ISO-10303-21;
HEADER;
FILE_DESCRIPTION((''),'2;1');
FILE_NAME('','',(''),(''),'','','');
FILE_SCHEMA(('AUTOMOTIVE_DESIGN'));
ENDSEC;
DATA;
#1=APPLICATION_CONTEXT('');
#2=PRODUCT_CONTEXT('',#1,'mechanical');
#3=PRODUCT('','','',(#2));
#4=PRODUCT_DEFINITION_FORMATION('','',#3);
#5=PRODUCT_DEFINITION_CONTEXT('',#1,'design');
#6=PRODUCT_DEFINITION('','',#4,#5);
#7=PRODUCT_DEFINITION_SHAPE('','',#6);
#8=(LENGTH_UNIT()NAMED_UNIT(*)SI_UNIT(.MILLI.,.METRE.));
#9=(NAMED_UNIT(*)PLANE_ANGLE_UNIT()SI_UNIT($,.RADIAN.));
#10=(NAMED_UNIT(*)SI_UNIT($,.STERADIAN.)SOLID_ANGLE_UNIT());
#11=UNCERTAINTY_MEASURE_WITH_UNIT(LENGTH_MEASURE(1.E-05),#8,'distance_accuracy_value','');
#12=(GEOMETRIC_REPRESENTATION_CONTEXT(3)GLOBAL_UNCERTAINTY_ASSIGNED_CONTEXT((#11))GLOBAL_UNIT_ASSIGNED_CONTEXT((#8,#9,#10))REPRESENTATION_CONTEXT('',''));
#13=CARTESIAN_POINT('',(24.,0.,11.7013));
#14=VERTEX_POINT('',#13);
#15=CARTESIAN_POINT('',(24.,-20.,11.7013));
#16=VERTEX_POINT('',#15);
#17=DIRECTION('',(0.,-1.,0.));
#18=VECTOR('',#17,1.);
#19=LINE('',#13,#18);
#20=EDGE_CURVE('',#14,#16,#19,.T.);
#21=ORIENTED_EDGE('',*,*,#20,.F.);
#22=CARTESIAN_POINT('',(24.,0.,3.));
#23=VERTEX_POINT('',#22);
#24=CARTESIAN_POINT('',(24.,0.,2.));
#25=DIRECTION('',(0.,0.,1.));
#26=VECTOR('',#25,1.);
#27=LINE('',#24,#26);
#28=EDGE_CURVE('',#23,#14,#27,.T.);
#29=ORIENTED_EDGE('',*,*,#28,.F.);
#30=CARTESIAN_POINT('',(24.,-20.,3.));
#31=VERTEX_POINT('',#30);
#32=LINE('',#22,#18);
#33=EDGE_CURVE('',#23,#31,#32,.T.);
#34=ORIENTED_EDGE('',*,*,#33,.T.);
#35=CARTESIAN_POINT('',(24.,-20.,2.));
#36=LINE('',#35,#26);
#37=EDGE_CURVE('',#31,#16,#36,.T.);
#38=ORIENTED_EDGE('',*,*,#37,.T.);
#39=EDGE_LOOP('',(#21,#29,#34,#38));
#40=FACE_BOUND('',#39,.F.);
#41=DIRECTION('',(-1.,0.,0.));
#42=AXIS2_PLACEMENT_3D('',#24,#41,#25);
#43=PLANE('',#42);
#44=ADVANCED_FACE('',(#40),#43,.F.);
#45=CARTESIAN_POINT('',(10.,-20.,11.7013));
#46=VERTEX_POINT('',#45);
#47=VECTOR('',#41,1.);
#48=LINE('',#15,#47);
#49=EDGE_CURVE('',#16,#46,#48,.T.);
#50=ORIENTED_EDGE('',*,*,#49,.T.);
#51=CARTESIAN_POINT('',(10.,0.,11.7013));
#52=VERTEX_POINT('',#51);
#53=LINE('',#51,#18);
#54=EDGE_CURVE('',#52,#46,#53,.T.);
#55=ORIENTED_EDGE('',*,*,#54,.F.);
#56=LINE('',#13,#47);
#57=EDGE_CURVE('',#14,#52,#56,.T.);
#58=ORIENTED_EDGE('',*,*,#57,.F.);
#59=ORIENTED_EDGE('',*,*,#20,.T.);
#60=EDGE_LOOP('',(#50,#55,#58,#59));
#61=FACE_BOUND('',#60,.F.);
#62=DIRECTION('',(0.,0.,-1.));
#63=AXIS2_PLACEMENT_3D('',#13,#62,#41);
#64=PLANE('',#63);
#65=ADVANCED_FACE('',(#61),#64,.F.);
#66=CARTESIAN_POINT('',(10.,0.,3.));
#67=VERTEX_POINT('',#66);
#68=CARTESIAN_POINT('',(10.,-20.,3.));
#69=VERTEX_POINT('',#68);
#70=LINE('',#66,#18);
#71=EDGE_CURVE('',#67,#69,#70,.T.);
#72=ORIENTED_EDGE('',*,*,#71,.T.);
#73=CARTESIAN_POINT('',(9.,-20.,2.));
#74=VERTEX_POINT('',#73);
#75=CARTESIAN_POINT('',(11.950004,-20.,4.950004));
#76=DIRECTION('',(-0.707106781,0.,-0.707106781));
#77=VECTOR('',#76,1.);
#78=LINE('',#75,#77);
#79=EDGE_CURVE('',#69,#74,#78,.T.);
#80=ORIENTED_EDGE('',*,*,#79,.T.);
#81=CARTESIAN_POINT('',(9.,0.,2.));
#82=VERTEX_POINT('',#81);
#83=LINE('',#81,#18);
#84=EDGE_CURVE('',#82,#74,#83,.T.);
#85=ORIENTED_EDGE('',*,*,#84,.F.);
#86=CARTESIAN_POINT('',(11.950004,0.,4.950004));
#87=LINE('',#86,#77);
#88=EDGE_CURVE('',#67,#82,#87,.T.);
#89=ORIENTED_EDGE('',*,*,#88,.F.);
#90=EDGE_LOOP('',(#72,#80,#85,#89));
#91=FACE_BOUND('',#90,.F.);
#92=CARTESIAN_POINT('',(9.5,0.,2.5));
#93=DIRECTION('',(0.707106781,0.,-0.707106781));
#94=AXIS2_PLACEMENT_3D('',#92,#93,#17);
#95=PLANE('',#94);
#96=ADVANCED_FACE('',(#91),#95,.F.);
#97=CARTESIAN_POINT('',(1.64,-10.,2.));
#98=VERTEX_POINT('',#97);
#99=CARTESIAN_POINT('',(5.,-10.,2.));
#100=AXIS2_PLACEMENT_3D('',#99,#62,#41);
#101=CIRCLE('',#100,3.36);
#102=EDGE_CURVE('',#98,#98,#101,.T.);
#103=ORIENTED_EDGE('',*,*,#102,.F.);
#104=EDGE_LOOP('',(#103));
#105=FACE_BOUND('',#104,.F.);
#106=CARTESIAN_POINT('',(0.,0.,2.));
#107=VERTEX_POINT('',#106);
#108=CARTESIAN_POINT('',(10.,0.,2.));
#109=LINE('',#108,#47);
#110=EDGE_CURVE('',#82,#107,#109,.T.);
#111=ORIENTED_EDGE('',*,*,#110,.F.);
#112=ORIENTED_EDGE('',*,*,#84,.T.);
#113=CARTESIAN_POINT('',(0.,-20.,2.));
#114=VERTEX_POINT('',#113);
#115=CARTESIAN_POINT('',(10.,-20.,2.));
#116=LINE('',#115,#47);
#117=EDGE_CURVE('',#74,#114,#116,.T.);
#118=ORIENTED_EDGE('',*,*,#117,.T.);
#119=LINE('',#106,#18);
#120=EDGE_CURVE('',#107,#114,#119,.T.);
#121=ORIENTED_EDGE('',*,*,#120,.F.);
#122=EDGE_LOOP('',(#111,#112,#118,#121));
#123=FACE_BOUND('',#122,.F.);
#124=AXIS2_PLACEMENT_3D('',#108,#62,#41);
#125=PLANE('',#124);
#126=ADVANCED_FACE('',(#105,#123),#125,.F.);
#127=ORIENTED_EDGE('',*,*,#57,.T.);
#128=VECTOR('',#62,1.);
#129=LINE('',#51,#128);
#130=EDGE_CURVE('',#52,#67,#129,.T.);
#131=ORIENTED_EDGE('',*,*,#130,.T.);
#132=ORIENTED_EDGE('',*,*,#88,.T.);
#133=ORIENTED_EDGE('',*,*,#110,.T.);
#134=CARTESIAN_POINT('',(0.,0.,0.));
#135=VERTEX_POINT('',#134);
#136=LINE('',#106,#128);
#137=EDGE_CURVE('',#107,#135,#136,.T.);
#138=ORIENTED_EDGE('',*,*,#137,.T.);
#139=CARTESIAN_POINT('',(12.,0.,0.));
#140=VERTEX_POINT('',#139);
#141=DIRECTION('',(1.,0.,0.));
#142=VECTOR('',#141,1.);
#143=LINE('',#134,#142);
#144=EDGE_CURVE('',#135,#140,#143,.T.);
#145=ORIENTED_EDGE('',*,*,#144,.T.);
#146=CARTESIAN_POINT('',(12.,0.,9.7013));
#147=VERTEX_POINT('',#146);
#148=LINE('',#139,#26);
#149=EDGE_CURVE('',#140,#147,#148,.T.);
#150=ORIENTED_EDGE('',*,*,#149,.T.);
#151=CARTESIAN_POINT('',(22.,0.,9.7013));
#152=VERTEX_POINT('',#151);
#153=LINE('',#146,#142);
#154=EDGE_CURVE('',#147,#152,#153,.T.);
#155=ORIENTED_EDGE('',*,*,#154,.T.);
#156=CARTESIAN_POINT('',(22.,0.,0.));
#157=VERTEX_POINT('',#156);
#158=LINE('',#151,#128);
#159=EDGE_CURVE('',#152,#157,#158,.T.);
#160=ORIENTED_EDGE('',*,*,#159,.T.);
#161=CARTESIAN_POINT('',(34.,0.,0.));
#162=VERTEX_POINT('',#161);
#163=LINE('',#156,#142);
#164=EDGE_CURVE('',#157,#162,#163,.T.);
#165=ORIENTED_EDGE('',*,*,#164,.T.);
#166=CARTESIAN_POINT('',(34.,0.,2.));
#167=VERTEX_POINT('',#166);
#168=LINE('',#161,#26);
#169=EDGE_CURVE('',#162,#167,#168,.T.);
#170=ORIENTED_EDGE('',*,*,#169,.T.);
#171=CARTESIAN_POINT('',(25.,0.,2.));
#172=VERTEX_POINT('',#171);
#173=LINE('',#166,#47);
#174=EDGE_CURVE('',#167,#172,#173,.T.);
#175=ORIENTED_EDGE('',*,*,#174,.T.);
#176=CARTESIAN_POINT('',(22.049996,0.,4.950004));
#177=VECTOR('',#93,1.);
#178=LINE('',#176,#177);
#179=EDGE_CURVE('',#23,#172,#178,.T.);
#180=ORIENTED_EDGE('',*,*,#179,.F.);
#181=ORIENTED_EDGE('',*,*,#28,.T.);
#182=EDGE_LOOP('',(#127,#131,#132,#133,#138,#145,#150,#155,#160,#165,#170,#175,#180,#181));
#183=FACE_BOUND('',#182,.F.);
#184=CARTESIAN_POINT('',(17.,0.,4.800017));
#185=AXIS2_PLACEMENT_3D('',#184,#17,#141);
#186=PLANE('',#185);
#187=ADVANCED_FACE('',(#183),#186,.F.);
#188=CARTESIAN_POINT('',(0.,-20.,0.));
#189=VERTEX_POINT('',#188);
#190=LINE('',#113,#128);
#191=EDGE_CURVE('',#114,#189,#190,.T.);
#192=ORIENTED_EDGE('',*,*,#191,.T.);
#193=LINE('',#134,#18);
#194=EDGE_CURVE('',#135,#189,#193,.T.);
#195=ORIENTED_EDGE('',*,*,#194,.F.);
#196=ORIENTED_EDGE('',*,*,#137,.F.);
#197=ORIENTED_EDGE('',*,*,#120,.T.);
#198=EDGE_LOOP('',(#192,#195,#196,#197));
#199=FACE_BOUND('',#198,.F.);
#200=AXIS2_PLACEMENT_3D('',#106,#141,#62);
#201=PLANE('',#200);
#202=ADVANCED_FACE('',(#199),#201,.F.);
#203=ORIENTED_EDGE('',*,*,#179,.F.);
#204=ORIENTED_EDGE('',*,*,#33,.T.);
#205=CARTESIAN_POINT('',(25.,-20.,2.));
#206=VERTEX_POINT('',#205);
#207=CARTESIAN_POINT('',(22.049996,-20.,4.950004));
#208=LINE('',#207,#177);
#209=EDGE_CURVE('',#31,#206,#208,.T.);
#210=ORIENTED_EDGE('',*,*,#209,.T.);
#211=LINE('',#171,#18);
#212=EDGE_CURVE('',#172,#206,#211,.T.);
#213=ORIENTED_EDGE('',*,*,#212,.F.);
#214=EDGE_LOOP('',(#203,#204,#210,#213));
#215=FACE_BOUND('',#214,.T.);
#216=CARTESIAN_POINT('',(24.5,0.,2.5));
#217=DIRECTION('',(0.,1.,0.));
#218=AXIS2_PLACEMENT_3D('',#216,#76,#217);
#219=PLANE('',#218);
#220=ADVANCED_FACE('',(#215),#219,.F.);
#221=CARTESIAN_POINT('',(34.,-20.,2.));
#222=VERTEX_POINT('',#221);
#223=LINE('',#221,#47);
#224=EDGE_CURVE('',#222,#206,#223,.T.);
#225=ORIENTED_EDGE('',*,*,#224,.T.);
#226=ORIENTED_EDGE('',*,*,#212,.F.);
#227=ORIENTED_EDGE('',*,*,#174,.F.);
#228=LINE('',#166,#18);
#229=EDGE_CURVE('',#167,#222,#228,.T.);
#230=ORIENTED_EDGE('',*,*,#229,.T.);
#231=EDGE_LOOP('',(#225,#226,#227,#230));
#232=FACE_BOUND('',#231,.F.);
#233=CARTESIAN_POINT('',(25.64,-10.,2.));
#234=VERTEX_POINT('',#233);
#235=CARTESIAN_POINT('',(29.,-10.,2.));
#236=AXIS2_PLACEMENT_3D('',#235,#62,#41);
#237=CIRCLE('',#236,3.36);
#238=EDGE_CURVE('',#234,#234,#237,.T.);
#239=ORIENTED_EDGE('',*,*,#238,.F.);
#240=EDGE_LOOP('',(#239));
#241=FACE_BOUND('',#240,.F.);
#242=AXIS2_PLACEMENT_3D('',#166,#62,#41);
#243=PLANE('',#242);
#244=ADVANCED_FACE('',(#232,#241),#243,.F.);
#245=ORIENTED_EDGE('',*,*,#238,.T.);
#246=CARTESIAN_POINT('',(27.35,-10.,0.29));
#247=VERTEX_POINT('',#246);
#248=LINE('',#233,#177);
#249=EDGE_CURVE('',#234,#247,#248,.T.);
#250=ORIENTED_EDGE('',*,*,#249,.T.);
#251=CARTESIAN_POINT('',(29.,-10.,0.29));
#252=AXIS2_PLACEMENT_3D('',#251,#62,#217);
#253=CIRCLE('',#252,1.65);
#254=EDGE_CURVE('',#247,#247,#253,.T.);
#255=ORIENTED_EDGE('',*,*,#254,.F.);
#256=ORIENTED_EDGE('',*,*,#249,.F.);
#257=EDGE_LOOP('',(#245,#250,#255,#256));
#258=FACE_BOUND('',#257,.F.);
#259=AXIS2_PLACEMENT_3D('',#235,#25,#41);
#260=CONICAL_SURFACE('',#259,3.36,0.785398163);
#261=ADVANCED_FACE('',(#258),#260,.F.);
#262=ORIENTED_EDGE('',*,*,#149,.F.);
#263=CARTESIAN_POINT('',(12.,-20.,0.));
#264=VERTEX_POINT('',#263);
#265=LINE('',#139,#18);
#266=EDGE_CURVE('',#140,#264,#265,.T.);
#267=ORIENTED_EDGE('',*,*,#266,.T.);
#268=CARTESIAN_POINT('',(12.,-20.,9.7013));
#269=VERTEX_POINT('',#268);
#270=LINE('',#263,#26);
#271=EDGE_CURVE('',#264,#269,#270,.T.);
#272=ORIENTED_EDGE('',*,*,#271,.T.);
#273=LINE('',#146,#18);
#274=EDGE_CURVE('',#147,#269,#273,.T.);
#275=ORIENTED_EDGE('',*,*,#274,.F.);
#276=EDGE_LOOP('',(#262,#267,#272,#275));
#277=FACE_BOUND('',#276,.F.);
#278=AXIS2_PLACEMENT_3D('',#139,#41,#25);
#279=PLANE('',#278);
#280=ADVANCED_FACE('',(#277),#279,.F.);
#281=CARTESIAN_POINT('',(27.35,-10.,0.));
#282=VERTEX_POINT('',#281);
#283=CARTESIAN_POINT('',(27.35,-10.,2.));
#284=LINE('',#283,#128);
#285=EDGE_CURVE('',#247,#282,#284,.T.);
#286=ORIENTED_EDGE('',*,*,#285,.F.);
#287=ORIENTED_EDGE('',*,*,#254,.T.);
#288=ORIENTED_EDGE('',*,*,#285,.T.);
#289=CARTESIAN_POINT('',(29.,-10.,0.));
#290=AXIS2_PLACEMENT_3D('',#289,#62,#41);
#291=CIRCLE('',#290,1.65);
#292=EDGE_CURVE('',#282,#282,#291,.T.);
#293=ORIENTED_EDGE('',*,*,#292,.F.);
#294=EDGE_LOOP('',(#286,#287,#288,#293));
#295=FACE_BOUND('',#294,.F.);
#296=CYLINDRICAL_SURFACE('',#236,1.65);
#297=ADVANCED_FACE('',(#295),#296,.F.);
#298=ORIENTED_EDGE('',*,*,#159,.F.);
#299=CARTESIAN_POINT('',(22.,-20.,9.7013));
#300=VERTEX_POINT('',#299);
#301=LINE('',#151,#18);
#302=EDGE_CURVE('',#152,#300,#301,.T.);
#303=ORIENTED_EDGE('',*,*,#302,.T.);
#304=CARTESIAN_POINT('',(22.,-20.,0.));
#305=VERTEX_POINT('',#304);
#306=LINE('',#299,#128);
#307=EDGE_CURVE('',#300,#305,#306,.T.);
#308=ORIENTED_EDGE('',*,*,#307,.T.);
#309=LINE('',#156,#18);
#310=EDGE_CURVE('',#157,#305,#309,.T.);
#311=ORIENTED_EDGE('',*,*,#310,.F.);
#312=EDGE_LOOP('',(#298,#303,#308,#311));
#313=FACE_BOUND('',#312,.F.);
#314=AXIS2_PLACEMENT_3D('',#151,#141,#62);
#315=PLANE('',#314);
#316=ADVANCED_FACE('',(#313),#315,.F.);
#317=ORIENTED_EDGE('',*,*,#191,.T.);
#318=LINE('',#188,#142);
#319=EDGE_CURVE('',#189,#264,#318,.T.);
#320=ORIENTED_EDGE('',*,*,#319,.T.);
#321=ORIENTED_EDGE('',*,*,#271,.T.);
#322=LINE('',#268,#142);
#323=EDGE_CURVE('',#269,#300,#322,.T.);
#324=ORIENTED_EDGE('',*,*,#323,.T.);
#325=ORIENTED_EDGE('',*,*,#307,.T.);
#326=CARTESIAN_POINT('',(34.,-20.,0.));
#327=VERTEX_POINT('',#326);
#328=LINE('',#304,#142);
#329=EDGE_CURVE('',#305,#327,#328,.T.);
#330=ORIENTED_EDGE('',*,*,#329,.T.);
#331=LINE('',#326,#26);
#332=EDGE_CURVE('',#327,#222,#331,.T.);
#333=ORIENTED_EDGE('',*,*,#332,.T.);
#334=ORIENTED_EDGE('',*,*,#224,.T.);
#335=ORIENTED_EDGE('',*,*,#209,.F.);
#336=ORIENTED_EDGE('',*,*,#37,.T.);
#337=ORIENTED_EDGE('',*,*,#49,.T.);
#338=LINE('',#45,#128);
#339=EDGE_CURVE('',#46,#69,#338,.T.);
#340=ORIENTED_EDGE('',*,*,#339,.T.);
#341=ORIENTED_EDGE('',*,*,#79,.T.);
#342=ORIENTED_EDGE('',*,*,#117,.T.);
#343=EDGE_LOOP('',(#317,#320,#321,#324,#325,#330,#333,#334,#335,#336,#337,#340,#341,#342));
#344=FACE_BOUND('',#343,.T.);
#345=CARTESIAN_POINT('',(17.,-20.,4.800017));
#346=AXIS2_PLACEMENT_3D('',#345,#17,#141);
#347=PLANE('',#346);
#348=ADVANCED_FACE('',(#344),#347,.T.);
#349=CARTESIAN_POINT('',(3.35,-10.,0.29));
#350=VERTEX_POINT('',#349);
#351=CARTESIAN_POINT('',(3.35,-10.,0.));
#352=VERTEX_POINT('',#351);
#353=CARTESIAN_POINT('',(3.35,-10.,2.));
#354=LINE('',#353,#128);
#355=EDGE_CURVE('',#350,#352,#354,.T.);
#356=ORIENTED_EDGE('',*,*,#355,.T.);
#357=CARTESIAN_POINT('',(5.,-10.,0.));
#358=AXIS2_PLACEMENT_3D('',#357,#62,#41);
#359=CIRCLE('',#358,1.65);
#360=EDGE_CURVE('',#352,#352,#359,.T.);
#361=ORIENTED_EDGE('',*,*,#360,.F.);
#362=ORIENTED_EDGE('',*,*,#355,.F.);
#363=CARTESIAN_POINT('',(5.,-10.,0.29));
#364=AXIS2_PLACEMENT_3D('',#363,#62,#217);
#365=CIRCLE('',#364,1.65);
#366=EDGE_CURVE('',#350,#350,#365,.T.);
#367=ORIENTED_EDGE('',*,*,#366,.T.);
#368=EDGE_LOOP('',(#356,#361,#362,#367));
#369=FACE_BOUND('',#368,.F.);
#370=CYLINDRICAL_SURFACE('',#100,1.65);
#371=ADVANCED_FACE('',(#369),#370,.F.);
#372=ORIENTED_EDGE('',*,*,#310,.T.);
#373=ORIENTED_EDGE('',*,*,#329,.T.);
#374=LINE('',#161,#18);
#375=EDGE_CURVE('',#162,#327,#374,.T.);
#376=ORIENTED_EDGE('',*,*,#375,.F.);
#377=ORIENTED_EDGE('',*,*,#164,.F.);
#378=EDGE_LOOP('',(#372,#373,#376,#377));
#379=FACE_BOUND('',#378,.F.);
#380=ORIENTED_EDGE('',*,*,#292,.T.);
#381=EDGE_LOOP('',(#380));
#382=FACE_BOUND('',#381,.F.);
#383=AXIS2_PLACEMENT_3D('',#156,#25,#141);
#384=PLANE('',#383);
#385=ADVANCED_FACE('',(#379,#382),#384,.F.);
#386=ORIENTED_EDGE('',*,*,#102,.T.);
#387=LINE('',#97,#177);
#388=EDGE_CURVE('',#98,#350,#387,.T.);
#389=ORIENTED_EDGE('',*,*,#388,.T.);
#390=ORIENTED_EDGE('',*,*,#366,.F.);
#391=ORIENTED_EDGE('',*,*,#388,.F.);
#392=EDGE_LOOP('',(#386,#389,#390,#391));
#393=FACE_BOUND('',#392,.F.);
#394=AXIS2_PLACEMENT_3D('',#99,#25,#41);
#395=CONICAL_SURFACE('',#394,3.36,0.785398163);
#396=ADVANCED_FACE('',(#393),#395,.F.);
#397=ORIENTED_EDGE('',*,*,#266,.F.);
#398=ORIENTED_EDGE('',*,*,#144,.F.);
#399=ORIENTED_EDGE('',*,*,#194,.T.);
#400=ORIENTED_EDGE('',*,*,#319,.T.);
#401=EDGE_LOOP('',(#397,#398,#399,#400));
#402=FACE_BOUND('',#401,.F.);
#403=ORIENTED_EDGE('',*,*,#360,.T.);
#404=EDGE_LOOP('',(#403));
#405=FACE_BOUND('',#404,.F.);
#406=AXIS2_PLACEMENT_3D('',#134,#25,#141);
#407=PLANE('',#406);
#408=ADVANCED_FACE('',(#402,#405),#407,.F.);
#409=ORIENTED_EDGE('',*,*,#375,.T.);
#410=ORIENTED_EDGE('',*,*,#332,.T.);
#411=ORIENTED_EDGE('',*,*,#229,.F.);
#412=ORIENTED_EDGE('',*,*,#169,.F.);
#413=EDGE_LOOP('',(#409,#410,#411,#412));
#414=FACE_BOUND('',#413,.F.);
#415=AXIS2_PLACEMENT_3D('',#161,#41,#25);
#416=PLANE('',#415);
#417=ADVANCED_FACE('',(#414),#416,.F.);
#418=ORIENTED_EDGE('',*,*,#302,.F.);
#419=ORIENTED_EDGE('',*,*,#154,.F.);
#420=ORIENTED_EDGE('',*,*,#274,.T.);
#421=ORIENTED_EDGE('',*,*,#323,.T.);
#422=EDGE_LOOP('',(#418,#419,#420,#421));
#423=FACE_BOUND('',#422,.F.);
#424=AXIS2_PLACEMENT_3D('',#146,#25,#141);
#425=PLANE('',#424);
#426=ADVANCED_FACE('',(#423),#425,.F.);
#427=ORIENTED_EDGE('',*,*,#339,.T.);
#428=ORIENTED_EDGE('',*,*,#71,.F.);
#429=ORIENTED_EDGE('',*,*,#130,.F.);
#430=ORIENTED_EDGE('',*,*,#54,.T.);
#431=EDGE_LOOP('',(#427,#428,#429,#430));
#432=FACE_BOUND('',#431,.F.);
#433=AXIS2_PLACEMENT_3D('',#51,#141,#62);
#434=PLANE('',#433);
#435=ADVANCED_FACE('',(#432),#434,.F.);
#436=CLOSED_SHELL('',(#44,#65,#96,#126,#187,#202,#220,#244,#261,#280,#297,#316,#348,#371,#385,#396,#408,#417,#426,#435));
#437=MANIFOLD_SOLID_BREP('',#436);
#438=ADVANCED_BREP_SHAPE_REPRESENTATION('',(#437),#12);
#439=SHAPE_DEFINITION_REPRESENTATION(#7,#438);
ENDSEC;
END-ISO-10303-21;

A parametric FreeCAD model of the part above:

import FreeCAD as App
import Part
import Sketcher


def edges_at(feature, points):
    """Names of the edges that pass closest to the given points."""
    edges = feature.Shape.Edges
    near = lambda p: min(range(len(edges)), key=lambda i: edges[i].distToShape(Part.Vertex(*p))[0])
    return sorted({f"Edge{near(p) + 1}" for p in points})

doc = App.newDocument("Part")
body = doc.addObject("PartDesign::Body", "Body")

sketch1 = body.newObject("Sketcher::SketchObject", "Sketch")
sketch1.AttachmentSupport = (doc.getObject("XZ_Plane"), [""])
sketch1.MapMode = "FlatFace"
sketch1.addGeometry([
    Part.LineSegment(App.Vector(0, 2, 0), App.Vector(0, 0, 0)),
    Part.LineSegment(App.Vector(0, 0, 0), App.Vector(12, 0, 0)),
    Part.LineSegment(App.Vector(12, 0, 0), App.Vector(12, 9.7, 0)),
    Part.LineSegment(App.Vector(12, 9.7, 0), App.Vector(22, 9.7, 0)),
    Part.LineSegment(App.Vector(22, 9.7, 0), App.Vector(22, 0, 0)),
    Part.LineSegment(App.Vector(22, 0, 0), App.Vector(34, 0, 0)),
    Part.LineSegment(App.Vector(34, 0, 0), App.Vector(34, 2, 0)),
    Part.LineSegment(App.Vector(34, 2, 0), App.Vector(24, 2, 0)),
    Part.LineSegment(App.Vector(24, 2, 0), App.Vector(24, 11.7, 0)),
    Part.LineSegment(App.Vector(24, 11.7, 0), App.Vector(10, 11.7, 0)),
    Part.LineSegment(App.Vector(10, 11.7, 0), App.Vector(10, 2, 0)),
    Part.LineSegment(App.Vector(10, 2, 0), App.Vector(0, 2, 0)),
], False)
sketch1.addConstraint([
    Sketcher.Constraint("Coincident", 0, 2, 1, 1),
    Sketcher.Constraint("Coincident", 1, 2, 2, 1),
    Sketcher.Constraint("Coincident", 2, 2, 3, 1),
    Sketcher.Constraint("Coincident", 3, 2, 4, 1),
    Sketcher.Constraint("Coincident", 4, 2, 5, 1),
    Sketcher.Constraint("Coincident", 5, 2, 6, 1),
    Sketcher.Constraint("Coincident", 6, 2, 7, 1),
    Sketcher.Constraint("Coincident", 7, 2, 8, 1),
    Sketcher.Constraint("Coincident", 8, 2, 9, 1),
    Sketcher.Constraint("Coincident", 9, 2, 10, 1),
    Sketcher.Constraint("Coincident", 10, 2, 11, 1),
    Sketcher.Constraint("Coincident", 11, 2, 0, 1),
    Sketcher.Constraint("Vertical", 0),
    Sketcher.Constraint("Horizontal", 1),
    Sketcher.Constraint("Vertical", 2),
    Sketcher.Constraint("Horizontal", 3),
    Sketcher.Constraint("Vertical", 4),
    Sketcher.Constraint("Horizontal", 5),
    Sketcher.Constraint("Vertical", 6),
    Sketcher.Constraint("Horizontal", 7),
    Sketcher.Constraint("Vertical", 8),
    Sketcher.Constraint("Horizontal", 9),
    Sketcher.Constraint("Vertical", 10),
    Sketcher.Constraint("Horizontal", 11),
    Sketcher.Constraint("Coincident", 0, 2, -1, 1),
    Sketcher.Constraint("PointOnObject", 4, 2, -1),
    Sketcher.Constraint("Horizontal", 7, 2, 10, 2),
    Sketcher.Constraint("Equal", 1, 5),
    Sketcher.Constraint("Equal", 3, 7),
    Sketcher.Constraint("Equal", 7, 11),
    Sketcher.Constraint("Equal", 4, 8),
    Sketcher.Constraint("DistanceX", 1, 1, 1, 2, 12.0),
    Sketcher.Constraint("DistanceX", 3, 1, 3, 2, 10.0),
    Sketcher.Constraint("DistanceY", 0, 2, 0, 1, 2.0),
    Sketcher.Constraint("DistanceY", 2, 1, 2, 2, 9.7013),
])
pad1 = body.newObject("PartDesign::Pad", "Pad")
pad1.Profile = sketch1
pad1.Length = 20

sketch2 = body.newObject("Sketcher::SketchObject", "Sketch001")
sketch2.AttachmentSupport = (doc.getObject("XY_Plane"), [""])
sketch2.MapMode = "FlatFace"
sketch2.AttachmentOffset = App.Placement(App.Vector(0, 0, 2), App.Rotation())
sketch2.addGeometry(Part.Circle(App.Vector(5, -10, 0), App.Vector(0, 0, 1), 1.6), False)
sketch2.addConstraint([
    Sketcher.Constraint("Diameter", 0, 3.3),
    Sketcher.Constraint("DistanceX", -1, 1, 0, 3, 5.0),
    Sketcher.Constraint("DistanceY", 0, 3, -1, 1, 10.0),
])
doc.recompute()
hole = body.newObject("PartDesign::Hole", "Hole")
hole.Profile = sketch2
hole.ThreadType = "None"
hole.Diameter = 3.3
hole.DepthType = "ThroughAll"
hole.HoleCutType = "Countersink"
hole.HoleCutDiameter = 6.72
hole.HoleCutCountersinkAngle = 90

sketch3 = body.newObject("Sketcher::SketchObject", "Sketch002")
sketch3.AttachmentSupport = (doc.getObject("XY_Plane"), [""])
sketch3.MapMode = "FlatFace"
sketch3.AttachmentOffset = App.Placement(App.Vector(0, 0, 2), App.Rotation())
sketch3.addGeometry(Part.Circle(App.Vector(29, -10, 0), App.Vector(0, 0, 1), 1.6), False)
sketch3.addConstraint([
    Sketcher.Constraint("Diameter", 0, 3.3),
    Sketcher.Constraint("DistanceX", -1, 1, 0, 3, 29.0),
    Sketcher.Constraint("DistanceY", 0, 3, -1, 1, 10.0),
])
doc.recompute()
hole2 = body.newObject("PartDesign::Hole", "Hole001")
hole2.Profile = sketch3
hole2.ThreadType = "None"
hole2.Diameter = 3.3
hole2.DepthType = "ThroughAll"
hole2.HoleCutType = "Countersink"
hole2.HoleCutDiameter = 6.72
hole2.HoleCutCountersinkAngle = 90
doc.recompute()

chamfer = body.newObject("PartDesign::Chamfer", "Chamfer")
chamfer.Base = (hole2, edges_at(hole2, [(24, -10, 2), (10, -10, 2)]))
chamfer.Size = 1

doc.recompute()
